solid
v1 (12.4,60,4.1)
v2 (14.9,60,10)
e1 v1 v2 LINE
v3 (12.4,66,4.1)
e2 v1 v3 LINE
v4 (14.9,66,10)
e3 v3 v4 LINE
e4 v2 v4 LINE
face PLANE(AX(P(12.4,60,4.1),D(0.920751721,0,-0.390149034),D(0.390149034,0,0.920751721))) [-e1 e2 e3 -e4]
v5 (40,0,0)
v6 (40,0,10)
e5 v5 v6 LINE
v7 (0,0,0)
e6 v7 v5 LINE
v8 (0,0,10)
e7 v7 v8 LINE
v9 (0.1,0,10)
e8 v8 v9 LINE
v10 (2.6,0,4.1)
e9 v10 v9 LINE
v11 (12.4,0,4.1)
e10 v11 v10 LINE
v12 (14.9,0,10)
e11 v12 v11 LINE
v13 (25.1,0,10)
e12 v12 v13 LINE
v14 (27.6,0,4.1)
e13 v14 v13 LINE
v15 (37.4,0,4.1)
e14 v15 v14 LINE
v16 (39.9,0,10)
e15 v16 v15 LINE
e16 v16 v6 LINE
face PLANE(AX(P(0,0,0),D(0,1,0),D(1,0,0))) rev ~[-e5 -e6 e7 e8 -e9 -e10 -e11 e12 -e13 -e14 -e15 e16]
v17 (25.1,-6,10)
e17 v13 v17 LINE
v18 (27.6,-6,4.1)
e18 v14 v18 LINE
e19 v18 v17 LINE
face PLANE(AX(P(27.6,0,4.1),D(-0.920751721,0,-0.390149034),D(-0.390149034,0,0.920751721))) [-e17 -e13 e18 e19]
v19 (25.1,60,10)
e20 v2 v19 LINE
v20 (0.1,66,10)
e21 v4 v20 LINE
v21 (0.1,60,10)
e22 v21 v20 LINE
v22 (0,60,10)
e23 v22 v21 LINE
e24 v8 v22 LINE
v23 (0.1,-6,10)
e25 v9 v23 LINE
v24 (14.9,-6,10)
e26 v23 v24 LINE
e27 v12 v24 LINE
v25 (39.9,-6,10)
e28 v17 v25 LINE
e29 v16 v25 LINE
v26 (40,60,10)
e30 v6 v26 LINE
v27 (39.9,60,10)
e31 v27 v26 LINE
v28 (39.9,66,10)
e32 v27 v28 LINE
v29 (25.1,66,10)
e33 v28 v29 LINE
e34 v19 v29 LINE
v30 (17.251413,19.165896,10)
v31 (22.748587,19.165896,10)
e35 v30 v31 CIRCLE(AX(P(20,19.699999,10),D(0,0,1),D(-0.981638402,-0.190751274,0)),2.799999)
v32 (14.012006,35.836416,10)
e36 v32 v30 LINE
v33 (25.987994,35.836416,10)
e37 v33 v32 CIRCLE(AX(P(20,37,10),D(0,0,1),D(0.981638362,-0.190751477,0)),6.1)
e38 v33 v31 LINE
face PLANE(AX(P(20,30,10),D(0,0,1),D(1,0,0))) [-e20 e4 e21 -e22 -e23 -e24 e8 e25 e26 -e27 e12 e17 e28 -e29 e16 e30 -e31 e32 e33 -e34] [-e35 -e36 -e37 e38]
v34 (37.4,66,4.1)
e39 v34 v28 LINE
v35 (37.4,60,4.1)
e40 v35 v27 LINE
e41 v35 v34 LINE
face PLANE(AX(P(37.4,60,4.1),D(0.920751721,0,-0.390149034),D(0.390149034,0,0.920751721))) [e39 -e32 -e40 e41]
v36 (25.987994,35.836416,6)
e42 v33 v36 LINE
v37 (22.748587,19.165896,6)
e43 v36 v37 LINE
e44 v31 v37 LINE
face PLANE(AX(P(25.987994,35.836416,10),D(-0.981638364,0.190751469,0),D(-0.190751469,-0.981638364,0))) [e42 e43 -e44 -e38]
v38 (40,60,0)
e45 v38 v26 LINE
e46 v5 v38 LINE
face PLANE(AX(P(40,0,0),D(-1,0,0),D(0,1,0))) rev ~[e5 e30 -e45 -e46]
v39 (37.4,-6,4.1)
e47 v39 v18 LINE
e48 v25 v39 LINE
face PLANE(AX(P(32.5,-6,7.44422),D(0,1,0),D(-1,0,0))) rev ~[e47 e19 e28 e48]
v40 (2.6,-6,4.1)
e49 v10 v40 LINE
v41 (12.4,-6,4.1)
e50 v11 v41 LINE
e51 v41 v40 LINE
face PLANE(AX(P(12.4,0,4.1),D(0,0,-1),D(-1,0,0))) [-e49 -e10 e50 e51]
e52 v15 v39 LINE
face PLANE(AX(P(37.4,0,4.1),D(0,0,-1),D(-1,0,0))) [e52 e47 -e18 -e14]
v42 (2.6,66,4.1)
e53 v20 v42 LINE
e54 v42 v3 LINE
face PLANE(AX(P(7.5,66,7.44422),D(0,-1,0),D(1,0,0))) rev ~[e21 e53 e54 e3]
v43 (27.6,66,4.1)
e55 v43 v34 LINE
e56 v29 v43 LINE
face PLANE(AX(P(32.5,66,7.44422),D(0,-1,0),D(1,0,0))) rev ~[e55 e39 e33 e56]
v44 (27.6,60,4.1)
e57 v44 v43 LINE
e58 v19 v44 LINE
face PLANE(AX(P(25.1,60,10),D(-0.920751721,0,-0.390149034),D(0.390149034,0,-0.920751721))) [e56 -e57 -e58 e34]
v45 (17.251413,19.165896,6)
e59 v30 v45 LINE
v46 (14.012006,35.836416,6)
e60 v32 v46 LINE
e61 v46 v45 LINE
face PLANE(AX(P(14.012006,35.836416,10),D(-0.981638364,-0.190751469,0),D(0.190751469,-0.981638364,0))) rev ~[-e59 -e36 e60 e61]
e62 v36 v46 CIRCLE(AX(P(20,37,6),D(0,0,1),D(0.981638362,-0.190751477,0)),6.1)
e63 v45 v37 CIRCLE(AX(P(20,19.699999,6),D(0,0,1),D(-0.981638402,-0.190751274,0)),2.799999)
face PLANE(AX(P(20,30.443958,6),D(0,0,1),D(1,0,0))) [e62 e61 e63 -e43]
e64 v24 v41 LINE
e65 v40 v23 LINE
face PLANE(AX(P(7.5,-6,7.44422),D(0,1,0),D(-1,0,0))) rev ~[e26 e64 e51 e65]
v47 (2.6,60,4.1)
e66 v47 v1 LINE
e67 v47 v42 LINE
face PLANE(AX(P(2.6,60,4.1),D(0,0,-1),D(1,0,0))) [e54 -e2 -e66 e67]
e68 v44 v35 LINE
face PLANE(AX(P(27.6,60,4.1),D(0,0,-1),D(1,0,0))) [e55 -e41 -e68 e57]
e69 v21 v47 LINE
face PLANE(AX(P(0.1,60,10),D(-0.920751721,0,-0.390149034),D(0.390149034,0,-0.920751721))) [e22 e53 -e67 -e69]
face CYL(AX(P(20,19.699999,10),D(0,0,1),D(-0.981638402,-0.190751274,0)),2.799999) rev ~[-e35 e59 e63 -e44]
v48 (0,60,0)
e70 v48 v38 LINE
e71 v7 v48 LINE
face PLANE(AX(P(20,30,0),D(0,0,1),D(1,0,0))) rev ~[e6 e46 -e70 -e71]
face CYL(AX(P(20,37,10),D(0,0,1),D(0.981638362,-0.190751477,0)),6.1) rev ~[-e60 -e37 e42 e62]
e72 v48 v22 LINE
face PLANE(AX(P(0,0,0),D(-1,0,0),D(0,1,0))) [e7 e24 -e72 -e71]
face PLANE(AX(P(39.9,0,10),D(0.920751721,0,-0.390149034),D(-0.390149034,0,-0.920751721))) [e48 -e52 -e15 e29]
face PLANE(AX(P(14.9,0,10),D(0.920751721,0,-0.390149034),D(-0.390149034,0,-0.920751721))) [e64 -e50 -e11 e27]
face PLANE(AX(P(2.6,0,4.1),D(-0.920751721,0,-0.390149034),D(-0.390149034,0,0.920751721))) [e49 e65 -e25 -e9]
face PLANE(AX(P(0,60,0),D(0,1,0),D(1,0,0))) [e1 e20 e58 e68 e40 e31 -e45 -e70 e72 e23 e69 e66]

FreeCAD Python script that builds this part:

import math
import FreeCAD as App
import Part
import Sketcher
Q = App.Units.Quantity

doc = App.newDocument("Part")
params = doc.addObject("Spreadsheet::Sheet", "Params")
for row, (alias, value) in enumerate([
    ("sketch1_width", "40 mm"),
    ("sketch1_height", "60 mm"),
    ("pad1_length", "10 mm"),
    ("sketch2_width", "14.8 mm"),
    ("sketch2_width2", "9.8 mm"),
    ("pad2_length", "6 mm"),
    ("sketch3_width", "14.8 mm"),
    ("sketch3_width2", "9.8 mm"),
    ("pad3_length", "6 mm"),
    ("sketch4_radius", "6.1 mm"),
    ("sketch4_radius2", "2.799999 mm"),
    ("pocket1_length", "4 mm"),
], start=1):
    params.set(f"A{row}", alias)
    params.set(f"B{row}", "=" + value)
    params.setAlias(f"B{row}", alias)

body = doc.addObject("PartDesign::Body", "Body")

sketch1 = body.newObject("Sketcher::SketchObject", "Sketch")
sketch1.AttachmentSupport = (doc.getObject("XY_Plane"), [""])
sketch1.MapMode = "FlatFace"
sketch1.addGeometry(Part.LineSegment(App.Vector(0, 60, 0), App.Vector(0, 0, 0)), False)
sketch1.addGeometry(Part.LineSegment(App.Vector(0, 0, 0), App.Vector(40, 0, 0)), False)
sketch1.addGeometry(Part.LineSegment(App.Vector(40, 0, 0), App.Vector(40, 60, 0)), False)
sketch1.addGeometry(Part.LineSegment(App.Vector(40, 60, 0), App.Vector(0, 60, 0)), False)
sketch1.addConstraint(Sketcher.Constraint("Coincident", 0, 2, 1, 1))
sketch1.addConstraint(Sketcher.Constraint("Coincident", 1, 2, 2, 1))
sketch1.addConstraint(Sketcher.Constraint("Coincident", 2, 2, 3, 1))
sketch1.addConstraint(Sketcher.Constraint("Coincident", 3, 2, 0, 1))
sketch1.addConstraint(Sketcher.Constraint("Vertical", 0))
sketch1.addConstraint(Sketcher.Constraint("Horizontal", 1))
sketch1.addConstraint(Sketcher.Constraint("Vertical", 2))
sketch1.addConstraint(Sketcher.Constraint("Horizontal", 3))
sketch1.addConstraint(Sketcher.Constraint("Coincident", 0, 2, -1, 1))
sketch1.addConstraint(Sketcher.Constraint("DistanceX", 1, 1, 1, 2, Q("40 mm")))
sketch1.addConstraint(Sketcher.Constraint("DistanceY", 0, 2, 0, 1, Q("60 mm")))
sketch1.setExpression("Constraints[9]", "Params.sketch1_width")
sketch1.setExpression("Constraints[10]", "Params.sketch1_height")
pad1 = body.newObject("PartDesign::Pad", "Pad")
pad1.Profile = sketch1
pad1.setExpression("Length", "Params.pad1_length")

sketch2 = body.newObject("Sketcher::SketchObject", "Sketch001")
sketch2.AttachmentSupport = (doc.getObject("XZ_Plane"), [""])
sketch2.MapMode = "FlatFace"
sketch2.addGeometry(Part.LineSegment(App.Vector(15, 10, 0), App.Vector(0, 10, 0)), False)
sketch2.addGeometry(Part.LineSegment(App.Vector(0, 10, 0), App.Vector(3, 4, 0)), False)
sketch2.addGeometry(Part.LineSegment(App.Vector(3, 4, 0), App.Vector(12, 4, 0)), False)
sketch2.addGeometry(Part.LineSegment(App.Vector(12, 4, 0), App.Vector(15, 10, 0)), False)
sketch2.addGeometry(Part.LineSegment(App.Vector(40, 10, 0), App.Vector(25, 10, 0)), False)
sketch2.addGeometry(Part.LineSegment(App.Vector(25, 10, 0), App.Vector(28, 4, 0)), False)
sketch2.addGeometry(Part.LineSegment(App.Vector(28, 4, 0), App.Vector(37, 4, 0)), False)
sketch2.addGeometry(Part.LineSegment(App.Vector(37, 4, 0), App.Vector(40, 10, 0)), False)
sketch2.addConstraint(Sketcher.Constraint("Coincident", 0, 2, 1, 1))
sketch2.addConstraint(Sketcher.Constraint("Coincident", 1, 2, 2, 1))
sketch2.addConstraint(Sketcher.Constraint("Coincident", 2, 2, 3, 1))
sketch2.addConstraint(Sketcher.Constraint("Coincident", 3, 2, 0, 1))
sketch2.addConstraint(Sketcher.Constraint("Coincident", 4, 2, 5, 1))
sketch2.addConstraint(Sketcher.Constraint("Coincident", 5, 2, 6, 1))
sketch2.addConstraint(Sketcher.Constraint("Coincident", 6, 2, 7, 1))
sketch2.addConstraint(Sketcher.Constraint("Coincident", 7, 2, 4, 1))
sketch2.addConstraint(Sketcher.Constraint("Horizontal", 0))
sketch2.addConstraint(Sketcher.Constraint("Horizontal", 2))
sketch2.addConstraint(Sketcher.Constraint("Horizontal", 4))
sketch2.addConstraint(Sketcher.Constraint("Horizontal", 6))
sketch2.addConstraint(Sketcher.Constraint("Parallel", 1, 5))
sketch2.addConstraint(Sketcher.Constraint("Parallel", 3, 7))
sketch2.addConstraint(Sketcher.Constraint("Horizontal", 3, 2, 4, 2))
sketch2.addConstraint(Sketcher.Constraint("Horizontal", 2, 2, 5, 2))
sketch2.addConstraint(Sketcher.Constraint("Equal", 0, 4))
sketch2.addConstraint(Sketcher.Constraint("Equal", 1, 3))
sketch2.addConstraint(Sketcher.Constraint("DistanceX", 0, 2, 0, 1, Q("14.8 mm")))
sketch2.addConstraint(Sketcher.Constraint("DistanceX", 2, 1, 2, 2, Q("9.8 mm")))
sketch2.addConstraint(Sketcher.Constraint("DistanceY", -1, 1, 0, 2, Q("10 mm")))
sketch2.addConstraint(Sketcher.Constraint("DistanceX", 0, 2, 4, 2, Q("25 mm")))
sketch2.addConstraint(Sketcher.Constraint("DistanceX", -1, 1, 0, 2, Q("0.1 mm")))
sketch2.addConstraint(Sketcher.Constraint("DistanceY", -1, 1, 1, 2, Q("4.1 mm")))
sketch2.setExpression("Constraints[18]", "Params.sketch2_width")
sketch2.setExpression("Constraints[19]", "Params.sketch2_width2")
pad2 = body.newObject("PartDesign::Pad", "Pad001")
pad2.Profile = sketch2
pad2.setExpression("Length", "Params.pad2_length")

sketch3 = body.newObject("Sketcher::SketchObject", "Sketch002")
sketch3.AttachmentSupport = (doc.getObject("XZ_Plane"), [""])
sketch3.MapMode = "FlatFace"
sketch3.AttachmentOffset = App.Placement(App.Vector(0, 0, -60), App.Rotation())
sketch3.addGeometry(Part.LineSegment(App.Vector(25, 10, 0), App.Vector(40, 10, 0)), False)
sketch3.addGeometry(Part.LineSegment(App.Vector(40, 10, 0), App.Vector(37, 4, 0)), False)
sketch3.addGeometry(Part.LineSegment(App.Vector(37, 4, 0), App.Vector(28, 4, 0)), False)
sketch3.addGeometry(Part.LineSegment(App.Vector(28, 4, 0), App.Vector(25, 10, 0)), False)
sketch3.addGeometry(Part.LineSegment(App.Vector(0, 10, 0), App.Vector(15, 10, 0)), False)
sketch3.addGeometry(Part.LineSegment(App.Vector(15, 10, 0), App.Vector(12, 4, 0)), False)
sketch3.addGeometry(Part.LineSegment(App.Vector(12, 4, 0), App.Vector(3, 4, 0)), False)
sketch3.addGeometry(Part.LineSegment(App.Vector(3, 4, 0), App.Vector(0, 10, 0)), False)
sketch3.addConstraint(Sketcher.Constraint("Coincident", 0, 2, 1, 1))
sketch3.addConstraint(Sketcher.Constraint("Coincident", 1, 2, 2, 1))
sketch3.addConstraint(Sketcher.Constraint("Coincident", 2, 2, 3, 1))
sketch3.addConstraint(Sketcher.Constraint("Coincident", 3, 2, 0, 1))
sketch3.addConstraint(Sketcher.Constraint("Coincident", 4, 2, 5, 1))
sketch3.addConstraint(Sketcher.Constraint("Coincident", 5, 2, 6, 1))
sketch3.addConstraint(Sketcher.Constraint("Coincident", 6, 2, 7, 1))
sketch3.addConstraint(Sketcher.Constraint("Coincident", 7, 2, 4, 1))
sketch3.addConstraint(Sketcher.Constraint("Horizontal", 0))
sketch3.addConstraint(Sketcher.Constraint("Horizontal", 2))
sketch3.addConstraint(Sketcher.Constraint("Horizontal", 4))
sketch3.addConstraint(Sketcher.Constraint("Horizontal", 6))
sketch3.addConstraint(Sketcher.Constraint("Parallel", 1, 5))
sketch3.addConstraint(Sketcher.Constraint("Parallel", 3, 7))
sketch3.addConstraint(Sketcher.Constraint("Horizontal", 3, 2, 4, 2))
sketch3.addConstraint(Sketcher.Constraint("Horizontal", 2, 2, 5, 2))
sketch3.addConstraint(Sketcher.Constraint("Equal", 0, 4))
sketch3.addConstraint(Sketcher.Constraint("Equal", 1, 3))
sketch3.addConstraint(Sketcher.Constraint("DistanceX", 0, 1, 0, 2, Q("14.8 mm")))
sketch3.addConstraint(Sketcher.Constraint("DistanceX", 2, 2, 2, 1, Q("9.8 mm")))
sketch3.addConstraint(Sketcher.Constraint("DistanceY", -1, 1, 0, 2, Q("10 mm")))
sketch3.addConstraint(Sketcher.Constraint("DistanceX", 4, 2, 0, 2, Q("25 mm")))
sketch3.addConstraint(Sketcher.Constraint("DistanceX", -1, 1, 0, 2, Q("39.9 mm")))
sketch3.addConstraint(Sketcher.Constraint("DistanceY", -1, 1, 1, 2, Q("4.1 mm")))
sketch3.setExpression("Constraints[18]", "Params.sketch3_width")
sketch3.setExpression("Constraints[19]", "Params.sketch3_width2")
pad3 = body.newObject("PartDesign::Pad", "Pad002")
pad3.Profile = sketch3
pad3.setExpression("Length", "Params.pad3_length")
pad3.Reversed = True

sketch4 = body.newObject("Sketcher::SketchObject", "Sketch003")
sketch4.AttachmentSupport = (doc.getObject("XY_Plane"), [""])
sketch4.MapMode = "FlatFace"
sketch4.AttachmentOffset = App.Placement(App.Vector(0, 0, 10), App.Rotation())
sketch4.addGeometry(Part.ArcOfCircle(Part.Circle(App.Vector(20, 37, 0), App.Vector(0, 0, 1), 6.1), math.radians(-11), math.radians(191)), False)
sketch4.addGeometry(Part.LineSegment(App.Vector(14, 35.8, 0), App.Vector(17.3, 19.2, 0)), False)
sketch4.addGeometry(Part.ArcOfCircle(Part.Circle(App.Vector(20, 19.7, 0), App.Vector(0, 0, 1), 2.8), math.radians(-169), math.radians(-11)), False)
sketch4.addGeometry(Part.LineSegment(App.Vector(22.7, 19.2, 0), App.Vector(26, 35.8, 0)), False)
sketch4.addConstraint(Sketcher.Constraint("Tangent", 0, 2, 1, 1))
sketch4.addConstraint(Sketcher.Constraint("Tangent", 1, 2, 2, 1))
sketch4.addConstraint(Sketcher.Constraint("Tangent", 2, 2, 3, 1))
sketch4.addConstraint(Sketcher.Constraint("Tangent", 3, 2, 0, 1))
sketch4.addConstraint(Sketcher.Constraint("Horizontal", 1, 2, 2, 2))
sketch4.addConstraint(Sketcher.Constraint("Radius", 0, Q("6.1 mm")))
sketch4.addConstraint(Sketcher.Constraint("Radius", 2, Q("2.799999 mm")))
sketch4.addConstraint(Sketcher.Constraint("DistanceX", -1, 1, 0, 3, Q("20 mm")))
sketch4.addConstraint(Sketcher.Constraint("DistanceY", -1, 1, 0, 3, Q("37 mm")))
sketch4.addConstraint(Sketcher.Constraint("DistanceY", -1, 1, 2, 3, Q("19.699999 mm")))
sketch4.setExpression("Constraints[5]", "Params.sketch4_radius")
sketch4.setExpression("Constraints[6]", "Params.sketch4_radius2")
pocket1 = body.newObject("PartDesign::Pocket", "Pocket")
pocket1.Profile = sketch4
pocket1.setExpression("Length", "Params.pocket1_length")

doc.recompute()
